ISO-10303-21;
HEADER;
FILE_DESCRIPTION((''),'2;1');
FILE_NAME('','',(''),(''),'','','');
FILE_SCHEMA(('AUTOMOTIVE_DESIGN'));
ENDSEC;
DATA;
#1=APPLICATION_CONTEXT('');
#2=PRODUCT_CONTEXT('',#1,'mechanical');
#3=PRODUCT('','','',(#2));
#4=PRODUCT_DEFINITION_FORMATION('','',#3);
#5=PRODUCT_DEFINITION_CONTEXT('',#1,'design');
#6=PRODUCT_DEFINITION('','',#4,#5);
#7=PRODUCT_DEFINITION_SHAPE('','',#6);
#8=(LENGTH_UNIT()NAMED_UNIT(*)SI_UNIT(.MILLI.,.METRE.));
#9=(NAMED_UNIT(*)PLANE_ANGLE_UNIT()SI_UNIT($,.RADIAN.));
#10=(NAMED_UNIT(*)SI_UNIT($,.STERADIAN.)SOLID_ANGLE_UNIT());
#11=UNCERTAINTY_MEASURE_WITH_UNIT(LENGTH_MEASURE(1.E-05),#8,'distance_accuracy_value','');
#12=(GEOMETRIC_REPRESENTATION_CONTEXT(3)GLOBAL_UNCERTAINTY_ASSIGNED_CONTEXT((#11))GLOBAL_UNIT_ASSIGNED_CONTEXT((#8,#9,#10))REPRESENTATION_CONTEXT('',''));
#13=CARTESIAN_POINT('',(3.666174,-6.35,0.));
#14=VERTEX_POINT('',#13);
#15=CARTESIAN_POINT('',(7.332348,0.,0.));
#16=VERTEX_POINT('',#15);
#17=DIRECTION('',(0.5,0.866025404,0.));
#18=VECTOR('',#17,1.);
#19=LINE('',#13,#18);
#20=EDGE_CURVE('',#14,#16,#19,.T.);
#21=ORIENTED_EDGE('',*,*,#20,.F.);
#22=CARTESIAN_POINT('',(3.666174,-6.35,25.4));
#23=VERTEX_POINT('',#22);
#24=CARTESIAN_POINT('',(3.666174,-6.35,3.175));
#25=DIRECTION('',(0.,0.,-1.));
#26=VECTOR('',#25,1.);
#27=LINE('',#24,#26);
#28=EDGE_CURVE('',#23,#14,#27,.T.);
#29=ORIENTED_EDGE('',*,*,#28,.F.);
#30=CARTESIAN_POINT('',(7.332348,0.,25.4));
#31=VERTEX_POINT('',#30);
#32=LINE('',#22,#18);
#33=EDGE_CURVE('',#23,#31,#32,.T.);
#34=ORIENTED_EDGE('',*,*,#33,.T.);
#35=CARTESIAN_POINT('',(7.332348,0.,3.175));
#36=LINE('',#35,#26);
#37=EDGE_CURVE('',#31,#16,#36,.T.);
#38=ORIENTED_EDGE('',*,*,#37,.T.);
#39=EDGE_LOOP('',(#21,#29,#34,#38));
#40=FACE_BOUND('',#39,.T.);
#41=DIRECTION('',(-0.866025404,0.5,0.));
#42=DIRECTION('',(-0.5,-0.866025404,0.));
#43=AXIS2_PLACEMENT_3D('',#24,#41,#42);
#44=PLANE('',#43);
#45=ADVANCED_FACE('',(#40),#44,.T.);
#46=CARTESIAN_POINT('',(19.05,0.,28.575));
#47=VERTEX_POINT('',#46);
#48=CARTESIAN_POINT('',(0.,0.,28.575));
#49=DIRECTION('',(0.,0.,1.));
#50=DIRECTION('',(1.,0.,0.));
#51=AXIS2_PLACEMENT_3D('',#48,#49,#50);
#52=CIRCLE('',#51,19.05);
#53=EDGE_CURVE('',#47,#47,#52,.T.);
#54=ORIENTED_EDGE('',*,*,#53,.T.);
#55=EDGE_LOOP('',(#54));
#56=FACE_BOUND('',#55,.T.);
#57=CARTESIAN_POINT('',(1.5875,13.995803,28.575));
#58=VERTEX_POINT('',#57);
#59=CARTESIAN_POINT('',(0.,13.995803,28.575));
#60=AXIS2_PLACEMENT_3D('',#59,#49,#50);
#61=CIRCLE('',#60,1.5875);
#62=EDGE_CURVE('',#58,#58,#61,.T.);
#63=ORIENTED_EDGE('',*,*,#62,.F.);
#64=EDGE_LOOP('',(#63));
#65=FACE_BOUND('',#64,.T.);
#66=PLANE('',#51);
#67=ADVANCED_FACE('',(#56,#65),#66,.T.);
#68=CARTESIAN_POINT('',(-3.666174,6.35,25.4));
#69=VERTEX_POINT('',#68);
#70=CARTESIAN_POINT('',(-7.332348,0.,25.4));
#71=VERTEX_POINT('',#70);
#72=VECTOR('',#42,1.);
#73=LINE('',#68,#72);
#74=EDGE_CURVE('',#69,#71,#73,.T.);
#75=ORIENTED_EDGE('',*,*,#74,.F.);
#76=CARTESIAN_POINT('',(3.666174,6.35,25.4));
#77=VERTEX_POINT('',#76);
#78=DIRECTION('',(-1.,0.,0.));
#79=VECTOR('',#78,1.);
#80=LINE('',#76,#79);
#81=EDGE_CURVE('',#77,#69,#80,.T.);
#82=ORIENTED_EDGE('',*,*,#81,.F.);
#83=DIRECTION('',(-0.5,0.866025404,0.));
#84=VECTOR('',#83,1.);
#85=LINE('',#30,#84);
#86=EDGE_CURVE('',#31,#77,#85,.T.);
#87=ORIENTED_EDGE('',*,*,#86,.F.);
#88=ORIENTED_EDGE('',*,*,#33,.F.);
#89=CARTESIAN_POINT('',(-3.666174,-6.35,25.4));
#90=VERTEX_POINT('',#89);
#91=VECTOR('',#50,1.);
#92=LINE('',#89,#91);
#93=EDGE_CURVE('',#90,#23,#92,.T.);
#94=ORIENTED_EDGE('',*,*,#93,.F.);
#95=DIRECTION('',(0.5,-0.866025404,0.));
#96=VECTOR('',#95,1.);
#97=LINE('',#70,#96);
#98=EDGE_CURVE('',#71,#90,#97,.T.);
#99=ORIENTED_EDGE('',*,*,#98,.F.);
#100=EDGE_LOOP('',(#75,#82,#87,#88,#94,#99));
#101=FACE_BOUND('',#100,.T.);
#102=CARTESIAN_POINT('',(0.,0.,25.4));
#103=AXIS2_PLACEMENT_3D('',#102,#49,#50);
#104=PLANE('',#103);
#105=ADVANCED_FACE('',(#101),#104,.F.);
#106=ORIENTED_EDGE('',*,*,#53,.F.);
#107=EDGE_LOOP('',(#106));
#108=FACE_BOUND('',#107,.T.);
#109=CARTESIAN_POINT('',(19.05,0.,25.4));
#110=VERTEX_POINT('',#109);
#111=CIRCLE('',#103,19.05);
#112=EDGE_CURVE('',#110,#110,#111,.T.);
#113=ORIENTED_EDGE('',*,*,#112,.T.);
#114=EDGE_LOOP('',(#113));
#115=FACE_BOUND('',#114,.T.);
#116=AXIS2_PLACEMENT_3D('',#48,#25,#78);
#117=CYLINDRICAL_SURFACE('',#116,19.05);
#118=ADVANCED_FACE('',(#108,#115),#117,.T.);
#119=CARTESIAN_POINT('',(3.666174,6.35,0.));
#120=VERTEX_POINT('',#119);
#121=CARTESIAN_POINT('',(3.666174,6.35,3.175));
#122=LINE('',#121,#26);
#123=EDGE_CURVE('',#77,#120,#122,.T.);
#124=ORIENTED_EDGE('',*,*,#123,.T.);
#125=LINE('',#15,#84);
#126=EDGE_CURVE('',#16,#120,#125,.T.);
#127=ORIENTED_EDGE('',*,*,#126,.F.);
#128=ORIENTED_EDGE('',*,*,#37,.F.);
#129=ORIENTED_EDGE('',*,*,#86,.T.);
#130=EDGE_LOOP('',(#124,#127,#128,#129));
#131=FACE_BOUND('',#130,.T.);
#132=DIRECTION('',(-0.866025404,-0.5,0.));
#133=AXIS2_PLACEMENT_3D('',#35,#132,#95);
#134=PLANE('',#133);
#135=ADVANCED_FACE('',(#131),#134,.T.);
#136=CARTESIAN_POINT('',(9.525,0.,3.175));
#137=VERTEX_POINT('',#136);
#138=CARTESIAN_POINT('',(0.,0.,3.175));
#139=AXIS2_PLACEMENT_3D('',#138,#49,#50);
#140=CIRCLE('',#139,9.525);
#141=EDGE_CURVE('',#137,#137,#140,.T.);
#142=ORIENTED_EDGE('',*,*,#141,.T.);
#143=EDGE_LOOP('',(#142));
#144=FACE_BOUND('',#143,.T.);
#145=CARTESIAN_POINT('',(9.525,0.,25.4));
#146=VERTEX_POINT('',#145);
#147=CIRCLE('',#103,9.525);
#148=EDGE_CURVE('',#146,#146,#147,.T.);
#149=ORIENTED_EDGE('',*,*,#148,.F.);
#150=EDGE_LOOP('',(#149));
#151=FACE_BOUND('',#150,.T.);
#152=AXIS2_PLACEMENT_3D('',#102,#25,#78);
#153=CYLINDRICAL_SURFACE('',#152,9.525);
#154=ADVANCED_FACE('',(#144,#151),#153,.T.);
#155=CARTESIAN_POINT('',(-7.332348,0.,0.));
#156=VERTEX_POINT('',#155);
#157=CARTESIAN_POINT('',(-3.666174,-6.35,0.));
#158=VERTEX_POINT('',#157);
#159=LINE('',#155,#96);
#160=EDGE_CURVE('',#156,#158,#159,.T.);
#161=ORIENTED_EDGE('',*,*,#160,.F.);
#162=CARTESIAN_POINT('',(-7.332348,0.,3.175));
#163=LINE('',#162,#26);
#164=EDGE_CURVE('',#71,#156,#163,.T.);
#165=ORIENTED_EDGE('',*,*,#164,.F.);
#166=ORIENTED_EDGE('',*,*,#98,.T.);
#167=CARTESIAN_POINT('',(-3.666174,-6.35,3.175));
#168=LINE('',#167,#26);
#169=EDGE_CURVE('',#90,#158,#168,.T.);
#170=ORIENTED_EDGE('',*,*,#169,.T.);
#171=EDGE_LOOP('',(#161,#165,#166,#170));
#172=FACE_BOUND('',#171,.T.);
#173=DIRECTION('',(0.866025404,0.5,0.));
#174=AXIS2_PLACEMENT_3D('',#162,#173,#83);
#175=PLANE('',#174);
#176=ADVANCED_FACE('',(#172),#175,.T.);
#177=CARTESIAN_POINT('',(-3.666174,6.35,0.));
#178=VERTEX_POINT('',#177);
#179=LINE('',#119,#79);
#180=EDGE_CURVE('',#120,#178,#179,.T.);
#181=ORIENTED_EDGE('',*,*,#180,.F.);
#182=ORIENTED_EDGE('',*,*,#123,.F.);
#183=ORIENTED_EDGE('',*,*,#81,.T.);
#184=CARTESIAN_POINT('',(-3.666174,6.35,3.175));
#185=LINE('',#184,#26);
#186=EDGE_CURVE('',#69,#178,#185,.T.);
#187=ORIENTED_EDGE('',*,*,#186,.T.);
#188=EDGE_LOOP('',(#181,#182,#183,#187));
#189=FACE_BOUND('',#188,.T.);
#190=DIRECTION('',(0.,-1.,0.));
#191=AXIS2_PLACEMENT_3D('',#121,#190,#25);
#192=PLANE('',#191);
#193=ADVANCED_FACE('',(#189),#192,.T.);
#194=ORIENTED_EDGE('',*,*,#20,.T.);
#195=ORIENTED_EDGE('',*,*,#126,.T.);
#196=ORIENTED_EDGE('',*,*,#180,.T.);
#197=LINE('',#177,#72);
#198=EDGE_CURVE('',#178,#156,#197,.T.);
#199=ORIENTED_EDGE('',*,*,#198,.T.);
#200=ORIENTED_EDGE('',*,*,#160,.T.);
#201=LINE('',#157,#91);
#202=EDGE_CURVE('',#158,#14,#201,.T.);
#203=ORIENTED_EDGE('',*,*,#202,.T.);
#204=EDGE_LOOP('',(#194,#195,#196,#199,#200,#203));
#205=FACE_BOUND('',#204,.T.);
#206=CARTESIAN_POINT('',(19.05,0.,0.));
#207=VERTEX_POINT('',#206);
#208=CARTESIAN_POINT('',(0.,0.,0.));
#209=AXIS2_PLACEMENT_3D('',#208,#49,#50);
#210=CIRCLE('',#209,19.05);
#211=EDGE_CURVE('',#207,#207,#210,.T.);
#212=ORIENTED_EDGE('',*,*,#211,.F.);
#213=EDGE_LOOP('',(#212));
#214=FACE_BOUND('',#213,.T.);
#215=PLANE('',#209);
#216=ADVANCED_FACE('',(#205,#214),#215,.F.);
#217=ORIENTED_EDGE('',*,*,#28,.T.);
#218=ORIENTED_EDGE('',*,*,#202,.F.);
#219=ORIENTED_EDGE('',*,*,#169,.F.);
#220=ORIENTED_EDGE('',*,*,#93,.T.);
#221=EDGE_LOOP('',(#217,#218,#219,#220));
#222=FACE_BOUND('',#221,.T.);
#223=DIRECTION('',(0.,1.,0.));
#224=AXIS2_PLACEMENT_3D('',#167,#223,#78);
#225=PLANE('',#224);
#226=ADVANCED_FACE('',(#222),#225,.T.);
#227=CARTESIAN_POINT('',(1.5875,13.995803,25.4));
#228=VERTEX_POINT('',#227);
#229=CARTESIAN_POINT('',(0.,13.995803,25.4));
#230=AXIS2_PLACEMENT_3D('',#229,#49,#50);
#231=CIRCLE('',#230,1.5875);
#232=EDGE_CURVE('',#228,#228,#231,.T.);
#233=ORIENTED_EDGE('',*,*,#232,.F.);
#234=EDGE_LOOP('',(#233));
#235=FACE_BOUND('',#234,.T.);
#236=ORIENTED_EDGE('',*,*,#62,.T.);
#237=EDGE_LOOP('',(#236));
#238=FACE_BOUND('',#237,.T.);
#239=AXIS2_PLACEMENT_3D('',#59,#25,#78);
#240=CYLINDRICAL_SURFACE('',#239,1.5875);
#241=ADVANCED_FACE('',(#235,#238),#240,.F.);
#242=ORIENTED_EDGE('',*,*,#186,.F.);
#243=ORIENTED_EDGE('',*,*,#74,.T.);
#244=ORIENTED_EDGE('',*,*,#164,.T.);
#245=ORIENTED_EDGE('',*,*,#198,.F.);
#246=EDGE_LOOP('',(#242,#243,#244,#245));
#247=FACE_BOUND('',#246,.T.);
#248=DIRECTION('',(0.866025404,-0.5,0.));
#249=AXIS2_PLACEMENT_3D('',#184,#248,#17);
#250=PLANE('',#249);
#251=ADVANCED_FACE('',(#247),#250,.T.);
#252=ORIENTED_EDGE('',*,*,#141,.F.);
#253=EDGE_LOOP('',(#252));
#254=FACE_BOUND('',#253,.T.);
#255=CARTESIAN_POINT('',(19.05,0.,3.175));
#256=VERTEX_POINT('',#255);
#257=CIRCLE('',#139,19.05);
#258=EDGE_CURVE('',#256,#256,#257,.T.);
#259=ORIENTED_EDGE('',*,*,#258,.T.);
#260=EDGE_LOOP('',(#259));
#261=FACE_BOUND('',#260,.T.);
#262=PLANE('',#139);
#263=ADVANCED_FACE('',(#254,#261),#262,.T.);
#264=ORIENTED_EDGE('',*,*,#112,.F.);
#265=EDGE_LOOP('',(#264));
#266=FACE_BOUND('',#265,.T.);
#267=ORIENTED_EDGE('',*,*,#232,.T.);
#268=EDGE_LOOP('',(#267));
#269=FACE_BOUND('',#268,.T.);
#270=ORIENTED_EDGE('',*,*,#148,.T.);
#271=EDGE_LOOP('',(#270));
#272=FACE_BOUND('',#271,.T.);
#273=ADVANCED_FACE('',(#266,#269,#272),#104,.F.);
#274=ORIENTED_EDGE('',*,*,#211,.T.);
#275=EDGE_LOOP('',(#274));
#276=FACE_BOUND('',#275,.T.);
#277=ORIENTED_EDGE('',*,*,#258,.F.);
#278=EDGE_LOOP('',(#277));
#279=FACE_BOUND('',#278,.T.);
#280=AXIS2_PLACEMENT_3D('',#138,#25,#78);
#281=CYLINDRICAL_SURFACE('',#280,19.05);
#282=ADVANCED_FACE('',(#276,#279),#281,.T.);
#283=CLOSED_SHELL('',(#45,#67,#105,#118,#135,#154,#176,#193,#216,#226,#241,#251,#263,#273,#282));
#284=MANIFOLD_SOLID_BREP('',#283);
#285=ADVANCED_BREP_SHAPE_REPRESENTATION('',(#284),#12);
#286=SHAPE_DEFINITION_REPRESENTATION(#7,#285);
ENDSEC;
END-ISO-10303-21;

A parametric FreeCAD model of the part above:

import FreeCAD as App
import Part
import Sketcher
from FreeCAD import Vector
Q = App.Units.Quantity


def add_polygon(sketch, points):
    """Adds a closed chain of lines whose ends are joined by coincident constraints."""
    first, n = sketch.GeometryCount, len(points)
    for a, b in zip(points, points[1:] + points[:1]):
        sketch.addGeometry(Part.LineSegment(App.Vector(*a, 0), App.Vector(*b, 0)), False)
    for i in range(n):
        sketch.addConstraint(Sketcher.Constraint("Coincident", first + i, 2, first + (i + 1) % n, 1))

doc = App.newDocument("Part")
body = doc.addObject("PartDesign::Body", "Body")

sketch1 = body.newObject("Sketcher::SketchObject", "Sketch")
sketch1.AttachmentSupport = (doc.getObject("XY_Plane"), [""])
sketch1.MapMode = "FlatFace"
sketch1.addGeometry(Part.Circle(Vector(0, 0, 0), Vector(0, 0, 1), 19), False)
add_polygon(sketch1, [(4, 6), (7, 0), (4, -6), (-4, -6), (-7, 0), (-4, 6)])
sketch1.addConstraint(Sketcher.Constraint("Horizontal", 3))
sketch1.addConstraint(Sketcher.Constraint("Horizontal", 6))
sketch1.addConstraint(Sketcher.Constraint("Coincident", 0, 3, -1, 1))
sketch1.addConstraint(Sketcher.Constraint("Symmetric", 1, 2, 4, 2, -1, 1))
sketch1.addConstraint(Sketcher.Constraint("Symmetric", 2, 2, 5, 2, -1, 1))
sketch1.addConstraint(Sketcher.Constraint("PointOnObject", 1, 2, -1))
sketch1.addConstraint(Sketcher.Constraint("Parallel", 1, 4))
sketch1.addConstraint(Sketcher.Constraint("Vertical", 3, 2, 5, 2))
sketch1.addConstraint(Sketcher.Constraint("Diameter", 0, Q("1.5 in")))
sketch1.addConstraint(Sketcher.Constraint("Angle", 1, Q("-60 deg")))
sketch1.addConstraint(Sketcher.Constraint("DistanceY", 3, 2, 5, 2, Q("0.5 in")))
sketch1.addConstraint(Sketcher.Constraint("DistanceX", 3, 2, 3, 1, Q("7.332348 mm")))
pad1 = body.newObject("PartDesign::Pad", "Pad")
pad1.Profile = sketch1
pad1.Length = Q("0.125 in")

sketch2 = body.newObject("Sketcher::SketchObject", "Sketch001")
sketch2.AttachmentSupport = (doc.getObject("XY_Plane"), [""])
sketch2.MapMode = "FlatFace"
sketch2.AttachmentOffset = App.Placement(Vector(0, 0, 0.125 * 25.4), App.Rotation())
sketch2.addGeometry(Part.Circle(Vector(0, 0, 0), Vector(0, 0, 1), 10), False)
add_polygon(sketch2, [(4, 6), (7, 0), (4, -6), (-4, -6), (-7, 0), (-4, 6)])
sketch2.addConstraint(Sketcher.Constraint("Horizontal", 3))
sketch2.addConstraint(Sketcher.Constraint("Horizontal", 6))
sketch2.addConstraint(Sketcher.Constraint("Coincident", 0, 3, -1, 1))
sketch2.addConstraint(Sketcher.Constraint("Symmetric", 1, 2, 4, 2, -1, 1))
sketch2.addConstraint(Sketcher.Constraint("Symmetric", 2, 2, 5, 2, -1, 1))
sketch2.addConstraint(Sketcher.Constraint("PointOnObject", 1, 2, -1))
sketch2.addConstraint(Sketcher.Constraint("Parallel", 1, 4))
sketch2.addConstraint(Sketcher.Constraint("Vertical", 3, 2, 5, 2))
sketch2.addConstraint(Sketcher.Constraint("Diameter", 0, Q("0.75 in")))
sketch2.addConstraint(Sketcher.Constraint("Angle", 1, Q("-60 deg")))
sketch2.addConstraint(Sketcher.Constraint("DistanceY", 3, 2, 5, 2, Q("0.5 in")))
sketch2.addConstraint(Sketcher.Constraint("DistanceX", 3, 2, 3, 1, Q("7.332348 mm")))
pad2 = body.newObject("PartDesign::Pad", "Pad001")
pad2.Profile = sketch2
pad2.Length = Q("0.875 in")

sketch3 = body.newObject("Sketcher::SketchObject", "Sketch002")
sketch3.AttachmentSupport = (doc.getObject("XY_Plane"), [""])
sketch3.MapMode = "FlatFace"
sketch3.AttachmentOffset = App.Placement(Vector(0, 0, 1 * 25.4), App.Rotation())
sketch3.addGeometry(Part.Circle(Vector(0, 0, 0), Vector(0, 0, 1), 19.1), False)
sketch3.addGeometry(Part.Circle(Vector(0, 14, 0), Vector(0, 0, 1), 1.6), False)
sketch3.addConstraint(Sketcher.Constraint("Coincident", 0, 3, -1, 1))
sketch3.addConstraint(Sketcher.Constraint("PointOnObject", 1, 3, -2))
sketch3.addConstraint(Sketcher.Constraint("Diameter", 0, Q("1.5 in")))
sketch3.addConstraint(Sketcher.Constraint("Diameter", 1, Q("0.125 in")))
sketch3.addConstraint(Sketcher.Constraint("DistanceY", -1, 1, 1, 3, Q("13.995803 mm")))
pad3 = body.newObject("PartDesign::Pad", "Pad002")
pad3.Profile = sketch3
pad3.Length = Q("0.125 in")

doc.recompute()
